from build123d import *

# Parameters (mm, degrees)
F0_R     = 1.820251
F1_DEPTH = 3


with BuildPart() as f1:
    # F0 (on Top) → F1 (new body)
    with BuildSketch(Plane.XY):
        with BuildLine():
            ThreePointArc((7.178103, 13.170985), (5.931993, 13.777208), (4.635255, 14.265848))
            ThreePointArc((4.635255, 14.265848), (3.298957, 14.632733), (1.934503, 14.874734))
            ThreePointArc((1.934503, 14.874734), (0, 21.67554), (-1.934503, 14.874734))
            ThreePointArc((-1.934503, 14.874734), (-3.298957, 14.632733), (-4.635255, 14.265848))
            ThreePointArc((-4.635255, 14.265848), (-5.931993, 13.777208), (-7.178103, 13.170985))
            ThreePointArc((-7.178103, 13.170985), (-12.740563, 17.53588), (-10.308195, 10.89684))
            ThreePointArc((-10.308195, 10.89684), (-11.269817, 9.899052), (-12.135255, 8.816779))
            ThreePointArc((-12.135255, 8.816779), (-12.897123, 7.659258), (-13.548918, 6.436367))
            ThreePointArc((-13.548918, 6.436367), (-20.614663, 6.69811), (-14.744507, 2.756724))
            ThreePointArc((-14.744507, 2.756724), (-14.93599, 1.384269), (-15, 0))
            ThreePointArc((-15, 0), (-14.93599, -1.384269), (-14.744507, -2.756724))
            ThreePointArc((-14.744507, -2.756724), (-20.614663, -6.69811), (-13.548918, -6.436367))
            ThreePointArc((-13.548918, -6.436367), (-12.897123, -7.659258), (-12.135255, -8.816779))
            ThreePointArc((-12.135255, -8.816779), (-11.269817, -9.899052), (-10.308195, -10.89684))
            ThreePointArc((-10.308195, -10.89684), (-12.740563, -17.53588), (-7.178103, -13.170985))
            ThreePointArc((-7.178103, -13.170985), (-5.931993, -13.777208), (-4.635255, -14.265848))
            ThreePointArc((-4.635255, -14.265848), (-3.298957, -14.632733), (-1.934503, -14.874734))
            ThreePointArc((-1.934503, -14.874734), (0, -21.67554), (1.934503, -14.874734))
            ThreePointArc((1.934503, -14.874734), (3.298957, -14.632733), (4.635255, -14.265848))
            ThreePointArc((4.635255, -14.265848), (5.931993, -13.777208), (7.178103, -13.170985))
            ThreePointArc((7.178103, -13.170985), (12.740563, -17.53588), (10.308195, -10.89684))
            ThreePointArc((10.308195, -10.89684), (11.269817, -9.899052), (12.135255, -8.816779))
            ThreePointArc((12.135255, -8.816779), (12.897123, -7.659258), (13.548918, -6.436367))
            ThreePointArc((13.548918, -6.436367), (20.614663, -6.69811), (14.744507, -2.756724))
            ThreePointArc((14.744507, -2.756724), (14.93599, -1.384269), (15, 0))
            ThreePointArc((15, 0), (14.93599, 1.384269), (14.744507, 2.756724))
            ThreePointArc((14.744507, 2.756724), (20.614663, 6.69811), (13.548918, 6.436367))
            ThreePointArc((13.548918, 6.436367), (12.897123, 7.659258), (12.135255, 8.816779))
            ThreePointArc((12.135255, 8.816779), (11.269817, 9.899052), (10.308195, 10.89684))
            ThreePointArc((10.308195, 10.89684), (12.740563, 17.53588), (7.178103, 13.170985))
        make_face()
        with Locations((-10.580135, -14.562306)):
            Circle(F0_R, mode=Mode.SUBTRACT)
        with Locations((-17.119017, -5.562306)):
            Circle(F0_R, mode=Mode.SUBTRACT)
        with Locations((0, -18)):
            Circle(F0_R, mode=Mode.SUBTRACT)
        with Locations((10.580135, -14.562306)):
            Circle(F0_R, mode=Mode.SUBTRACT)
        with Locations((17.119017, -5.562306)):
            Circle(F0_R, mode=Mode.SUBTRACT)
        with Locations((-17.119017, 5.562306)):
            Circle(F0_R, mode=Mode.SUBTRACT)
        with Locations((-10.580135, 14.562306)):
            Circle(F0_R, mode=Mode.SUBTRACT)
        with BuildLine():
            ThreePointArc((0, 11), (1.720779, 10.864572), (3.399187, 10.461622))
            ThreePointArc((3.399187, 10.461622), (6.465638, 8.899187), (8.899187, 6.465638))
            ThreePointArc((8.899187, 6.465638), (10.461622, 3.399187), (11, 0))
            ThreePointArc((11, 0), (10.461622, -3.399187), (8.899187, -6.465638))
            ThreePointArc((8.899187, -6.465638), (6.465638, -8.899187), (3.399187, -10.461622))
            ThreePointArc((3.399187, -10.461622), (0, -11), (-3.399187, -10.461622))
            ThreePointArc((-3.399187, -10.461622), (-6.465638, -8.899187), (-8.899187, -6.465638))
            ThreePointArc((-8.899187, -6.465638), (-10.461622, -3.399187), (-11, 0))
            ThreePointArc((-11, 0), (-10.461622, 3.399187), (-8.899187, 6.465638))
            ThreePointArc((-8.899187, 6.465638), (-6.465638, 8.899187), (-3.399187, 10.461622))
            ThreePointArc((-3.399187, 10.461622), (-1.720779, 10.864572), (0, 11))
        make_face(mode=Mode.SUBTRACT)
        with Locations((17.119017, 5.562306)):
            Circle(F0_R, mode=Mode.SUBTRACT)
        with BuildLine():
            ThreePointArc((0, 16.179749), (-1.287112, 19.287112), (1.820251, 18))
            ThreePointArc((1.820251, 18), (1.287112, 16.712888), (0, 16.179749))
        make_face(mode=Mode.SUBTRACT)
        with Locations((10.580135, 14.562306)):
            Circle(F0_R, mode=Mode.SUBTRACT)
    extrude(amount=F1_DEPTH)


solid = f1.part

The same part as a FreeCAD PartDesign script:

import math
import FreeCAD as App
import Part
import Sketcher
from FreeCAD import Vector
Q = App.Units.Quantity

doc = App.newDocument("Part")
body = doc.addObject("PartDesign::Body", "Body")

sketch1 = doc.addObject("Sketcher::SketchObject", "Sketch")
body.addObject(sketch1)
sketch1.AttachmentSupport = (doc.XY_Plane, [""])
sketch1.MapMode = "FlatFace"
sketch1.addGeometry([
    Part.ArcOfCircle(Part.Circle(Vector(-0.000022, -0.000051, 0), Vector(0, 0, 1), 15.000055), math.radians(61.409917), math.radians(71.999981)),
    Part.ArcOfCircle(Part.Circle(Vector(-0.000033, -0.00014, 0), Vector(0, 0, 1), 15.000144), math.radians(72.000047), math.radians(82.59005)),
    Part.ArcOfCircle(Part.Circle(Vector(0, 18, 0), Vector(0, 0, 1), 3.67554), math.radians(-58.242981), math.radians(238.242981)),
    Part.ArcOfCircle(Part.Circle(Vector(0.000033, -0.00014, 0), Vector(0, 0, 1), 15.000144), math.radians(97.40995), math.radians(107.999953)),
    Part.ArcOfCircle(Part.Circle(Vector(0.000022, -0.000051, 0), Vector(0, 0, 1), 15.000055), math.radians(108.000019), math.radians(118.590083)),
    Part.ArcOfCircle(Part.Circle(Vector(-10.580135, 14.562306, 0), Vector(0, 0, 1), 3.67554), math.radians(-22.242978), math.radians(274.242979)),
    Part.ArcOfCircle(Part.Circle(Vector(0.000002, -0.000001, 0), Vector(0, 0, 1), 15.000002), math.radians(133.409897), math.radians(143.999999)),
    Part.ArcOfCircle(Part.Circle(Vector(-0.000082, 0.00005, 0), Vector(0, 0, 1), 14.999904), math.radians(143.99997), math.radians(154.590143)),
    Part.ArcOfCircle(Part.Circle(Vector(-17.119017, 5.562306, 0), Vector(0, 0, 1), 3.675539), math.radians(13.757011), math.radians(310.242974)),
    Part.ArcOfCircle(Part.Circle(Vector(0.00007, -0.000004, 0), Vector(0, 0, 1), 15.00007), math.radians(169.409929), math.radians(179.999985)),
    Part.ArcOfCircle(Part.Circle(Vector(0.00007, 0.000004, 0), Vector(0, 0, 1), 15.00007), math.radians(-179.999985), math.radians(-169.409929)),
    Part.ArcOfCircle(Part.Circle(Vector(-17.119017, -5.562306, 0), Vector(0, 0, 1), 3.675539), math.radians(49.757026), math.radians(346.242989)),
    Part.ArcOfCircle(Part.Circle(Vector(-0.000082, -0.00005, 0), Vector(0, 0, 1), 14.999904), math.radians(-154.590143), math.radians(-143.99997)),
    Part.ArcOfCircle(Part.Circle(Vector(0.000002, 0.000001, 0), Vector(0, 0, 1), 15.000002), math.radians(-143.999999), math.radians(-133.409897)),
    Part.ArcOfCircle(Part.Circle(Vector(-10.580135, -14.562306, 0), Vector(0, 0, 1), 3.67554), math.radians(85.757021), math.radians(382.242978)),
    Part.ArcOfCircle(Part.Circle(Vector(0.000022, 0.000051, 0), Vector(0, 0, 1), 15.000055), math.radians(-118.590083), math.radians(-108.000019)),
    Part.ArcOfCircle(Part.Circle(Vector(0.000033, 0.00014, 0), Vector(0, 0, 1), 15.000144), math.radians(-107.999953), math.radians(-97.40995)),
    Part.ArcOfCircle(Part.Circle(Vector(0, -18, 0), Vector(0, 0, 1), 3.67554), math.radians(121.757019), math.radians(418.242981)),
    Part.ArcOfCircle(Part.Circle(Vector(-0.000033, 0.00014, 0), Vector(0, 0, 1), 15.000144), math.radians(-82.59005), math.radians(-72.000047)),
    Part.ArcOfCircle(Part.Circle(Vector(-0.000022, 0.000051, 0), Vector(0, 0, 1), 15.000055), math.radians(-71.999981), math.radians(-61.409917)),
    Part.ArcOfCircle(Part.Circle(Vector(10.580135, -14.562306, 0), Vector(0, 0, 1), 3.67554), math.radians(157.757022), math.radians(454.242979)),
    Part.ArcOfCircle(Part.Circle(Vector(-0.000002, 0.000001, 0), Vector(0, 0, 1), 15.000002), math.radians(-46.590103), math.radians(-36.000001)),
    Part.ArcOfCircle(Part.Circle(Vector(0.000082, -0.00005, 0), Vector(0, 0, 1), 14.999904), math.radians(-36.00003), math.radians(-25.409857)),
    Part.ArcOfCircle(Part.Circle(Vector(17.119017, -5.562306, 0), Vector(0, 0, 1), 3.675539), math.radians(-166.242989), math.radians(130.242974)),
    Part.ArcOfCircle(Part.Circle(Vector(-0.00007, 0.000004, 0), Vector(0, 0, 1), 15.00007), math.radians(-10.590071), math.radians(-0.000015)),
    Part.ArcOfCircle(Part.Circle(Vector(-0.00007, -0.000004, 0), Vector(0, 0, 1), 15.00007), math.radians(0.000015), math.radians(10.590071)),
    Part.ArcOfCircle(Part.Circle(Vector(17.119017, 5.562306, 0), Vector(0, 0, 1), 3.675539), math.radians(-130.242974), math.radians(166.242989)),
    Part.ArcOfCircle(Part.Circle(Vector(0.000082, 0.00005, 0), Vector(0, 0, 1), 14.999904), math.radians(25.409857), math.radians(36.00003)),
    Part.ArcOfCircle(Part.Circle(Vector(-0.000002, -0.000001, 0), Vector(0, 0, 1), 15.000002), math.radians(36.000001), math.radians(46.590103)),
    Part.ArcOfCircle(Part.Circle(Vector(10.580135, 14.562306, 0), Vector(0, 0, 1), 3.67554), math.radians(-94.242979), math.radians(202.242978)),
    Part.Circle(Vector(-10.580135, -14.562306, 0), Vector(0, 0, 1), 1.820251),
    Part.Circle(Vector(-17.119017, -5.562306, 0), Vector(0, 0, 1), 1.820251),
    Part.Circle(Vector(0, -18, 0), Vector(0, 0, 1), 1.820251),
    Part.Circle(Vector(10.580135, -14.562306, 0), Vector(0, 0, 1), 1.820251),
    Part.ArcOfCircle(Part.Circle(Vector(-0.000002, 0.000005, 0), Vector(0, 0, 1), 10.999995), math.radians(89.99999), math.radians(107.999999)),
    Part.ArcOfCircle(Part.Circle(Vector(0.000002, 0.000005, 0), Vector(0, 0, 1), 10.999995), math.radians(72.000001), math.radians(90.00001)),
    Part.ArcOfCircle(Part.Circle(Vector(-0.000001, -0.000001, 0), Vector(0, 0, 1), 11.000002), math.radians(36.000002), math.radians(71.999997)),
    Part.ArcOfCircle(Part.Circle(Vector(0.000004, 0.000002, 0), Vector(0, 0, 1), 10.999996), math.radians(-0.000009), math.radians(36.000007)),
    Part.ArcOfCircle(Part.Circle(Vector(0.000004, -0.000002, 0), Vector(0, 0, 1), 10.999996), math.radians(-36.000007), math.radians(0.000009)),
    Part.ArcOfCircle(Part.Circle(Vector(-0.000001, 0.000001, 0), Vector(0, 0, 1), 11.000002), math.radians(-71.999997), math.radians(-36.000002)),
    Part.ArcOfCircle(Part.Circle(Vector(0, 0.000007, 0), Vector(0, 0, 1), 11.000007), math.radians(-107.999989), math.radians(-72.000011)),
    Part.ArcOfCircle(Part.Circle(Vector(0.000001, 0.000001, 0), Vector(0, 0, 1), 11.000002), math.radians(-143.999998), math.radians(-108.000003)),
    Part.ArcOfCircle(Part.Circle(Vector(-0.000004, -0.000002, 0), Vector(0, 0, 1), 10.999996), math.radians(179.999991), math.radians(216.000007)),
    Part.ArcOfCircle(Part.Circle(Vector(-0.000004, 0.000002, 0), Vector(0, 0, 1), 10.999996), math.radians(143.999993), math.radians(180.000009)),
    Part.ArcOfCircle(Part.Circle(Vector(0.000001, -0.000001, 0), Vector(0, 0, 1), 11.000002), math.radians(108.000003), math.radians(143.999998)),
    Part.Circle(Vector(17.119017, -5.562306, 0), Vector(0, 0, 1), 1.820251),
    Part.Circle(Vector(-17.119017, 5.562306, 0), Vector(0, 0, 1), 1.820251),
    Part.Circle(Vector(-10.580135, 14.562306, 0), Vector(0, 0, 1), 1.820251),
    Part.ArcOfCircle(Part.Circle(Vector(0.000001, 17.999999, 0), Vector(0, 0, 1), 1.82025), math.radians(-90.000019), math.radians(0.000019)),
    Part.ArcOfCircle(Part.Circle(Vector(0, 18, 0), Vector(0, 0, 1), 1.820251), math.radians(-0.000003), math.radians(270.000003)),
    Part.Circle(Vector(17.119017, 5.562306, 0), Vector(0, 0, 1), 1.820251),
    Part.Circle(Vector(10.580135, 14.562306, 0), Vector(0, 0, 1), 1.820251),
], False)
sketch1.addConstraint([
    Sketcher.Constraint("Coincident", 0, 2, 1, 1),
    Sketcher.Constraint("Coincident", 1, 2, 2, 1),
    Sketcher.Constraint("Coincident", 2, 2, 3, 1),
    Sketcher.Constraint("Coincident", 3, 2, 4, 1),
    Sketcher.Constraint("Coincident", 4, 2, 5, 1),
    Sketcher.Constraint("Coincident", 5, 2, 6, 1),
    Sketcher.Constraint("Coincident", 6, 2, 7, 1),
    Sketcher.Constraint("Coincident", 7, 2, 8, 1),
    Sketcher.Constraint("Coincident", 8, 2, 9, 1),
    Sketcher.Constraint("Coincident", 9, 2, 10, 1),
    Sketcher.Constraint("Coincident", 10, 2, 11, 1),
    Sketcher.Constraint("Coincident", 11, 2, 12, 1),
    Sketcher.Constraint("Coincident", 12, 2, 13, 1),
    Sketcher.Constraint("Coincident", 13, 2, 14, 1),
    Sketcher.Constraint("Coincident", 14, 2, 15, 1),
    Sketcher.Constraint("Coincident", 15, 2, 16, 1),
    Sketcher.Constraint("Coincident", 16, 2, 17, 1),
    Sketcher.Constraint("Coincident", 17, 2, 18, 1),
    Sketcher.Constraint("Coincident", 18, 2, 19, 1),
    Sketcher.Constraint("Coincident", 19, 2, 20, 1),
    Sketcher.Constraint("Coincident", 20, 2, 21, 1),
    Sketcher.Constraint("Coincident", 21, 2, 22, 1),
    Sketcher.Constraint("Coincident", 22, 2, 23, 1),
    Sketcher.Constraint("Coincident", 23, 2, 24, 1),
    Sketcher.Constraint("Coincident", 24, 2, 25, 1),
    Sketcher.Constraint("Coincident", 25, 2, 26, 1),
    Sketcher.Constraint("Coincident", 26, 2, 27, 1),
    Sketcher.Constraint("Coincident", 27, 2, 28, 1),
    Sketcher.Constraint("Coincident", 28, 2, 29, 1),
    Sketcher.Constraint("Coincident", 29, 2, 0, 1),
    Sketcher.Constraint("Coincident", 34, 1, 35, 2),
    Sketcher.Constraint("Coincident", 35, 1, 36, 2),
    Sketcher.Constraint("Coincident", 36, 1, 37, 2),
    Sketcher.Constraint("Coincident", 37, 1, 38, 2),
    Sketcher.Constraint("Coincident", 38, 1, 39, 2),
    Sketcher.Constraint("Coincident", 39, 1, 40, 2),
    Sketcher.Constraint("Coincident", 40, 1, 41, 2),
    Sketcher.Constraint("Coincident", 41, 1, 42, 2),
    Sketcher.Constraint("Coincident", 42, 1, 43, 2),
    Sketcher.Constraint("Coincident", 43, 1, 44, 2),
    Sketcher.Constraint("Coincident", 44, 1, 34, 2),
    Sketcher.Constraint("Coincident", 48, 1, 49, 2),
    Sketcher.Constraint("Coincident", 49, 1, 48, 2),
    Sketcher.Constraint("Coincident", 6, 3, -1, 1),
    Sketcher.Constraint("Coincident", 13, 3, -1, 1),
    Sketcher.Constraint("Coincident", 21, 3, -1, 1),
    Sketcher.Constraint("Coincident", 28, 3, -1, 1),
    Sketcher.Constraint("Coincident", 34, 3, -1, 1),
    Sketcher.Constraint("Coincident", 35, 3, -1, 1),
    Sketcher.Constraint("Coincident", 36, 3, -1, 1),
    Sketcher.Constraint("Coincident", 37, 3, -1, 1),
    Sketcher.Constraint("Coincident", 38, 3, -1, 1),
    Sketcher.Constraint("Coincident", 39, 3, -1, 1),
    Sketcher.Constraint("Coincident", 40, 3, -1, 1),
    Sketcher.Constraint("Coincident", 41, 3, -1, 1),
    Sketcher.Constraint("Coincident", 42, 3, -1, 1),
    Sketcher.Constraint("Coincident", 43, 3, -1, 1),
    Sketcher.Constraint("Coincident", 10, 3, 9, 3),
    Sketcher.Constraint("Coincident", 25, 3, 24, 3),
    Sketcher.Constraint("Coincident", 30, 3, 14, 3),
    Sketcher.Constraint("Coincident", 31, 3, 11, 3),
    Sketcher.Constraint("Coincident", 32, 3, 17, 3),
    Sketcher.Constraint("Coincident", 33, 3, 20, 3),
    Sketcher.Constraint("Coincident", 45, 3, 23, 3),
    Sketcher.Constraint("Coincident", 46, 3, 8, 3),
    Sketcher.Constraint("Coincident", 47, 3, 5, 3),
    Sketcher.Constraint("Coincident", 48, 3, 2, 3),
    Sketcher.Constraint("Coincident", 50, 3, 26, 3),
    Sketcher.Constraint("Coincident", 51, 3, 29, 3),
    Sketcher.Constraint("PointOnObject", 2, 3, -2),
    Sketcher.Constraint("PointOnObject", 17, 3, -2),
    Sketcher.Constraint("PointOnObject", 49, 3, -2),
    Sketcher.Constraint("PointOnObject", 9, 2, -1),
    Sketcher.Constraint("PointOnObject", 24, 2, -1),
    Sketcher.Constraint("PointOnObject", 34, 1, -2),
    Sketcher.Constraint("PointOnObject", 37, 1, -1),
    Sketcher.Constraint("PointOnObject", 42, 1, -1),
    Sketcher.Constraint("PointOnObject", 48, 1, -2),
    Sketcher.Constraint("Radius", 36, Q("11.000002 mm")),
    Sketcher.Constraint("Radius", 44, Q("11.000002 mm")),
    Sketcher.Constraint("DistanceY", -1, 1, 2, 3, Q("18 mm")),
    Sketcher.Constraint("DistanceY", 17, 3, -1, 1, Q("18 mm")),
    Sketcher.Constraint("DistanceX", 9, 2, -1, 1, Q("15 mm")),
    Sketcher.Constraint("DistanceX", -1, 1, 24, 2, Q("15 mm")),
    Sketcher.Constraint("DistanceY", -1, 1, 49, 1, Q("18 mm")),
    Sketcher.Constraint("Radius", 2, Q("3.67554 mm")),
    Sketcher.Constraint("Radius", 5, Q("3.67554 mm")),
    Sketcher.Constraint("Radius", 8, Q("3.675539 mm")),
    Sketcher.Constraint("Radius", 9, Q("15.00007 mm")),
    Sketcher.Constraint("Radius", 11, Q("3.675539 mm")),
    Sketcher.Constraint("Radius", 14, Q("3.67554 mm")),
    Sketcher.Constraint("Radius", 17, Q("3.67554 mm")),
    Sketcher.Constraint("Radius", 20, Q("3.67554 mm")),
    Sketcher.Constraint("Radius", 23, Q("3.675539 mm")),
    Sketcher.Constraint("Radius", 24, Q("15.00007 mm")),
    Sketcher.Constraint("Radius", 26, Q("3.675539 mm")),
    Sketcher.Constraint("Radius", 29, Q("3.67554 mm")),
    Sketcher.Constraint("Radius", 48, Q("1.82025 mm")),
    Sketcher.Constraint("Diameter", 30, Q("3.640502 mm")),
    Sketcher.Constraint("Diameter", 31, Q("3.640502 mm")),
    Sketcher.Constraint("Diameter", 32, Q("3.640502 mm")),
    Sketcher.Constraint("Diameter", 33, Q("3.640502 mm")),
    Sketcher.Constraint("Diameter", 45, Q("3.640502 mm")),
    Sketcher.Constraint("Diameter", 46, Q("3.640502 mm")),
    Sketcher.Constraint("Diameter", 47, Q("3.640502 mm")),
    Sketcher.Constraint("Diameter", 50, Q("3.640502 mm")),
    Sketcher.Constraint("Diameter", 51, Q("3.640502 mm")),
    Sketcher.Constraint("Radius", 0, Q("15.000055 mm")),
    Sketcher.Constraint("Radius", 1, Q("15.000144 mm")),
    Sketcher.Constraint("Radius", 3, Q("15.000144 mm")),
    Sketcher.Constraint("Radius", 4, Q("15.000055 mm")),
    Sketcher.Constraint("Radius", 6, Q("15.000002 mm")),
    Sketcher.Constraint("Radius", 7, Q("14.999904 mm")),
    Sketcher.Constraint("Radius", 12, Q("14.999904 mm")),
    Sketcher.Constraint("Radius", 13, Q("15.000002 mm")),
    Sketcher.Constraint("Radius", 15, Q("15.000055 mm")),
    Sketcher.Constraint("Radius", 16, Q("15.000144 mm")),
    Sketcher.Constraint("Radius", 18, Q("15.000144 mm")),
    Sketcher.Constraint("Radius", 19, Q("15.000055 mm")),
    Sketcher.Constraint("Radius", 21, Q("15.000002 mm")),
    Sketcher.Constraint("Radius", 22, Q("14.999904 mm")),
    Sketcher.Constraint("Radius", 27, Q("14.999904 mm")),
    Sketcher.Constraint("Radius", 28, Q("15.000002 mm")),
    Sketcher.Constraint("DistanceY", 1, 3, -1, 1, Q("0.00014 mm")),
    Sketcher.Constraint("DistanceY", 3, 3, -1, 1, Q("0.00014 mm")),
    Sketcher.Constraint("DistanceY", -1, 1, 16, 3, Q("0.00014 mm")),
    Sketcher.Constraint("DistanceY", -1, 1, 18, 3, Q("0.00014 mm")),
    Sketcher.Constraint("DistanceY", -1, 1, 0, 2, Q("14.265848 mm")),
    Sketcher.Constraint("DistanceY", -1, 1, 5, 2, Q("10.89684 mm")),
    Sketcher.Constraint("DistanceY", -1, 1, 6, 2, Q("8.816779 mm")),
    Sketcher.Constraint("DistanceX", 7, 2, -1, 1, Q("13.548918 mm")),
    Sketcher.Constraint("DistanceX", 11, 2, -1, 1, Q("13.548918 mm")),
    Sketcher.Constraint("DistanceY", 12, 2, -1, 1, Q("8.816779 mm")),
    Sketcher.Constraint("DistanceY", 13, 2, -1, 1, Q("10.89684 mm")),
    Sketcher.Constraint("DistanceY", 15, 2, -1, 1, Q("14.265848 mm")),
    Sketcher.Constraint("DistanceY", 20, 2, -1, 1, Q("10.89684 mm")),
    Sketcher.Constraint("DistanceY", 21, 2, -1, 1, Q("8.816779 mm")),
    Sketcher.Constraint("DistanceX", -1, 1, 22, 2, Q("13.548918 mm")),
    Sketcher.Constraint("DistanceX", -1, 1, 26, 2, Q("13.548918 mm")),
    Sketcher.Constraint("DistanceY", -1, 1, 27, 2, Q("8.816779 mm")),
    Sketcher.Constraint("DistanceY", -1, 1, 28, 2, Q("10.89684 mm")),
    Sketcher.Constraint("DistanceY", -1, 1, 35, 1, Q("10.461622 mm")),
    Sketcher.Constraint("DistanceY", -1, 1, 36, 1, Q("6.465638 mm")),
    Sketcher.Constraint("DistanceY", 38, 1, -1, 1, Q("6.465638 mm")),
    Sketcher.Constraint("DistanceY", 40, 1, -1, 1, Q("10.461622 mm")),
    Sketcher.Constraint("DistanceY", 41, 1, -1, 1, Q("6.465638 mm")),
    Sketcher.Constraint("DistanceY", -1, 1, 43, 1, Q("6.465638 mm")),
    Sketcher.Constraint("DistanceX", 5, 3, -1, 1, Q("10.580135 mm")),
    Sketcher.Constraint("DistanceX", 8, 3, -1, 1, Q("17.119017 mm")),
    Sketcher.Constraint("DistanceY", -1, 1, 8, 3, Q("5.562306 mm")),
    Sketcher.Constraint("DistanceX", 11, 3, -1, 1, Q("17.119017 mm")),
    Sketcher.Constraint("DistanceY", 11, 3, -1, 1, Q("5.562306 mm")),
    Sketcher.Constraint("DistanceX", 14, 3, -1, 1, Q("10.580135 mm")),
    Sketcher.Constraint("DistanceX", -1, 1, 20, 3, Q("10.580135 mm")),
    Sketcher.Constraint("DistanceX", -1, 1, 23, 3, Q("17.119017 mm")),
    Sketcher.Constraint("DistanceY", 23, 3, -1, 1, Q("5.562306 mm")),
    Sketcher.Constraint("DistanceX", -1, 1, 26, 3, Q("17.119017 mm")),
    Sketcher.Constraint("DistanceY", -1, 1, 26, 3, Q("5.562306 mm")),
    Sketcher.Constraint("DistanceX", -1, 1, 29, 3, Q("10.580135 mm")),
    Sketcher.Constraint("DistanceX", -1, 1, 0, 2, Q("4.635255 mm")),
    Sketcher.Constraint("DistanceX", 2, 2, -1, 1, Q("1.934503 mm")),
    Sketcher.Constraint("DistanceX", 3, 2, -1, 1, Q("4.635255 mm")),
    Sketcher.Constraint("DistanceX", 4, 2, -1, 1, Q("7.178103 mm")),
    Sketcher.Constraint("DistanceX", 8, 2, -1, 1, Q("14.744507 mm")),
    Sketcher.Constraint("DistanceX", 14, 2, -1, 1, Q("7.178103 mm")),
    Sketcher.Constraint("DistanceX", 15, 2, -1, 1, Q("4.635255 mm")),
    Sketcher.Constraint("DistanceX", -1, 1, 17, 2, Q("1.934503 mm")),
    Sketcher.Constraint("DistanceX", -1, 1, 18, 2, Q("4.635255 mm")),
    Sketcher.Constraint("DistanceX", -1, 1, 19, 2, Q("7.178103 mm")),
    Sketcher.Constraint("DistanceX", -1, 1, 23, 2, Q("14.744507 mm")),
    Sketcher.Constraint("DistanceX", -1, 1, 29, 2, Q("7.178103 mm")),
    Sketcher.Constraint("DistanceX", -1, 1, 39, 1, Q("3.399187 mm")),
    Sketcher.Constraint("DistanceX", 44, 1, -1, 1, Q("3.399187 mm")),
])
pad1 = doc.addObject("PartDesign::Pad", "Pad")
body.addObject(pad1)
pad1.Profile = sketch1
pad1.Length = 3

doc.recompute()
